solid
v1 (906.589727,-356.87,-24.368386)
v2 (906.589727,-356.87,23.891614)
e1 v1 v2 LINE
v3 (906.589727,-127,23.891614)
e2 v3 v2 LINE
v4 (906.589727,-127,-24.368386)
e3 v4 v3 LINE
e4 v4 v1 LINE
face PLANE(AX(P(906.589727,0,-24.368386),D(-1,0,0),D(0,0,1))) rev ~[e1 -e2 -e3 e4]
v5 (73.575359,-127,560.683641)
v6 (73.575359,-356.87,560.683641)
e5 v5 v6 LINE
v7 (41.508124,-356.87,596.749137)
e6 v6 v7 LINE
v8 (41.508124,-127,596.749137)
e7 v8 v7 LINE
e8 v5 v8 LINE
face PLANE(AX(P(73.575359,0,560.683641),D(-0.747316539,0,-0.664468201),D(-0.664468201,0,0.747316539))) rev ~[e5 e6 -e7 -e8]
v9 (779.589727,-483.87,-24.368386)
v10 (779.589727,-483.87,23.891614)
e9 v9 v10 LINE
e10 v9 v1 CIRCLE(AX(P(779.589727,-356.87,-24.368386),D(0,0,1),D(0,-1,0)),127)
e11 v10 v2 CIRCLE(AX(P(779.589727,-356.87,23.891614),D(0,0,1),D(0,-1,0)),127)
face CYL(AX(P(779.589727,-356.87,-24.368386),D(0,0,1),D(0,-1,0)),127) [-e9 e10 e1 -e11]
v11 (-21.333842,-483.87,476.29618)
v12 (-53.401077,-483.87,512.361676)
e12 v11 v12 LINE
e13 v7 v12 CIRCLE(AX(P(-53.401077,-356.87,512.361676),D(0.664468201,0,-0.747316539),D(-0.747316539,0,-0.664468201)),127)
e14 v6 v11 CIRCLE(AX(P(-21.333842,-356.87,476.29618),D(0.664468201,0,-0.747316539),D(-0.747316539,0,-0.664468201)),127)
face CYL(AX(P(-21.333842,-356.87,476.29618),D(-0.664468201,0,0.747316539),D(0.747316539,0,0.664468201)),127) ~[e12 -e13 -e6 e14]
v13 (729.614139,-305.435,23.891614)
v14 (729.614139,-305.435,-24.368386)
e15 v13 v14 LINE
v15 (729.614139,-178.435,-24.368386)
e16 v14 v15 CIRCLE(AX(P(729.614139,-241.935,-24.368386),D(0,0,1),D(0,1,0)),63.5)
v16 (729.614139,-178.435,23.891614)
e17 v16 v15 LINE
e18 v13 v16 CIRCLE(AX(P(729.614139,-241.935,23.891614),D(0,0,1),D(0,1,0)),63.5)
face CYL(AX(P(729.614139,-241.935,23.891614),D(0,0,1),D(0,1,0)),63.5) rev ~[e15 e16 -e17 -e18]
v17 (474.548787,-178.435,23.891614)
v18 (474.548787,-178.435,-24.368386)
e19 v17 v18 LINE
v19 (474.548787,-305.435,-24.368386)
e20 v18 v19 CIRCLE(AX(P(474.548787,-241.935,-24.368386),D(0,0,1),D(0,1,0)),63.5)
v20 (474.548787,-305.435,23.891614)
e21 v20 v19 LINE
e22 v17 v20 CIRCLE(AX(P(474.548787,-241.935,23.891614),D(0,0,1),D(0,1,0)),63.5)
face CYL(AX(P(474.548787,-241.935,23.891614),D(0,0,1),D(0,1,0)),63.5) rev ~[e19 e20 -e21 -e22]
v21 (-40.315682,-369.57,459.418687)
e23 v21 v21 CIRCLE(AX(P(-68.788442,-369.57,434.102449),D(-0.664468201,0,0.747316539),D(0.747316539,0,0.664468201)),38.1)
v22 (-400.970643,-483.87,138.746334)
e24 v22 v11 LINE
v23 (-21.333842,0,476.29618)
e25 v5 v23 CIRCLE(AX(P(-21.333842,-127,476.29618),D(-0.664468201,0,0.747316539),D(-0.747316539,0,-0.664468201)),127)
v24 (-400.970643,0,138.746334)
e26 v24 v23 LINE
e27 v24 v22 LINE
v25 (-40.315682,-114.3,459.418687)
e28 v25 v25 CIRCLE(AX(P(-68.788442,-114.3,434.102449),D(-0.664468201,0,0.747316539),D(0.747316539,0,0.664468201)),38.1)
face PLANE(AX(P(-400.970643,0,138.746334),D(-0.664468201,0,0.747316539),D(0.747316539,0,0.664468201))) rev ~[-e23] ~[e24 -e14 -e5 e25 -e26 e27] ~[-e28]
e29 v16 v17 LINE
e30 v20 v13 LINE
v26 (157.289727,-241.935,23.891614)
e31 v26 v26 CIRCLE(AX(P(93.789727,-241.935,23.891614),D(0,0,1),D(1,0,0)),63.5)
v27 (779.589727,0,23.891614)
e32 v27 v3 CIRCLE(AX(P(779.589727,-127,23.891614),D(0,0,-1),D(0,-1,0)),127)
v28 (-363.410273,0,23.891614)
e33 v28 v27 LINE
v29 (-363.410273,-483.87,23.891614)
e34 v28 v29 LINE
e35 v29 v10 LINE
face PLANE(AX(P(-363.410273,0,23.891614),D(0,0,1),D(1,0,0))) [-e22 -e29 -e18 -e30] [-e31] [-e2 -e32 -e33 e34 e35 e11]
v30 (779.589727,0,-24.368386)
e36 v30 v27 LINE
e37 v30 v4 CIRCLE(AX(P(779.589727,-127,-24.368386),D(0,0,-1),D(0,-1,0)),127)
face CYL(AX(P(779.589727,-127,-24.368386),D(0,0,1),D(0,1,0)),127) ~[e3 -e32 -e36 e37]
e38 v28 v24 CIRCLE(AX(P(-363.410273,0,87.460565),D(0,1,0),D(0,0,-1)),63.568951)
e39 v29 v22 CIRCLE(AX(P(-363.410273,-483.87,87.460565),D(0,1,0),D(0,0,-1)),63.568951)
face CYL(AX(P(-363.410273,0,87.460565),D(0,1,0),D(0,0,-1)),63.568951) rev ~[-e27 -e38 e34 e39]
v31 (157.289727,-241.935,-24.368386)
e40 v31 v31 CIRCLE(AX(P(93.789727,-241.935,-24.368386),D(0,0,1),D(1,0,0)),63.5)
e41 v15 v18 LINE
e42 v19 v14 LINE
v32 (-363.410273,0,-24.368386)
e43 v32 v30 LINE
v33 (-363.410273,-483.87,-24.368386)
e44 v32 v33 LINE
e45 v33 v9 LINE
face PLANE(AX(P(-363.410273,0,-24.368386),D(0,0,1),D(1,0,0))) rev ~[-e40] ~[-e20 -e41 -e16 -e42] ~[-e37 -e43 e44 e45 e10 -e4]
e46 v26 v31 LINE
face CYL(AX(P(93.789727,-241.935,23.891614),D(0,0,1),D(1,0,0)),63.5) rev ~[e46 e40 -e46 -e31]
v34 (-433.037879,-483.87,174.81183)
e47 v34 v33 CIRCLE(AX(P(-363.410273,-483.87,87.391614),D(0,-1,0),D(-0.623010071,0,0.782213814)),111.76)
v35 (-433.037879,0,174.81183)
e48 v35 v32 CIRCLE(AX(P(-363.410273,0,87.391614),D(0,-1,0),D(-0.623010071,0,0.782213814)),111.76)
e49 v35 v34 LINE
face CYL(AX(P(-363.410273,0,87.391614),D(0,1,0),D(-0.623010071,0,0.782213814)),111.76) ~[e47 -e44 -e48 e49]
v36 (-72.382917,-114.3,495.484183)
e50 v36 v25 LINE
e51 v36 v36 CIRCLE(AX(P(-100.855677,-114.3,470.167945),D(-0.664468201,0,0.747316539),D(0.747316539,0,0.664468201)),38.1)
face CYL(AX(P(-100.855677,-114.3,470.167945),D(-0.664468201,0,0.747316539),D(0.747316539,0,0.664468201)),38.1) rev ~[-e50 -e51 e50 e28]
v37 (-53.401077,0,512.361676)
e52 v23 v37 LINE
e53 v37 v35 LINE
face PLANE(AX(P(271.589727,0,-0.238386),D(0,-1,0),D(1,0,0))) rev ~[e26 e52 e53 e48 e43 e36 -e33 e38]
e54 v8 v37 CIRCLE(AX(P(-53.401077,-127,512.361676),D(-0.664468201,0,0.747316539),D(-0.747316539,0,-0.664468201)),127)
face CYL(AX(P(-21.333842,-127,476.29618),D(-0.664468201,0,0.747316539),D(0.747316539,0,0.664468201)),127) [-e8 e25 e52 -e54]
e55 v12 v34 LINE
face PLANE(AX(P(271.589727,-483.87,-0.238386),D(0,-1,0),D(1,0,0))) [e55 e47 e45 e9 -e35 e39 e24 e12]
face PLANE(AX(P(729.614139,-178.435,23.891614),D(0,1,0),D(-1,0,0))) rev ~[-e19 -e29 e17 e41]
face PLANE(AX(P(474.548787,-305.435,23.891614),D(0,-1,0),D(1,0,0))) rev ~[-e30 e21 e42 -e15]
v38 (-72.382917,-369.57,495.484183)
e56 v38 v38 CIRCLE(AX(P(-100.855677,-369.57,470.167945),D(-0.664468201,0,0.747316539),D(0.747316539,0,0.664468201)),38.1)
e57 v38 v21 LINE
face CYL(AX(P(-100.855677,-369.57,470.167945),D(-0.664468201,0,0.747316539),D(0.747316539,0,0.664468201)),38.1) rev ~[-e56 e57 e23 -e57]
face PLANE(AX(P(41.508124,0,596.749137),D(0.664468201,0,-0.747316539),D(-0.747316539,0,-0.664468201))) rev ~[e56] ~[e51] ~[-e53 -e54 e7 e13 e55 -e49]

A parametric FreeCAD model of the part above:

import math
import FreeCAD as App
import Part
import Sketcher
Q = App.Units.Quantity


def edges_at(feature, points):
    """Names of the edges that pass closest to the given points."""
    edges = feature.Shape.Edges
    near = lambda p: min(range(len(edges)), key=lambda i: edges[i].distToShape(Part.Vertex(*p))[0])
    return sorted({f"Edge{near(p) + 1}" for p in points})

doc = App.newDocument("Part")
body = doc.addObject("PartDesign::Body", "Body")

sketch1 = doc.addObject("Sketcher::SketchObject", "Sketch")
body.addObject(sketch1)
sketch1.AttachmentSupport = (doc.XZ_Plane, [""])
sketch1.MapMode = "FlatFace"
sketch1.addGeometry([
    Part.LineSegment(App.Vector(-363, -24, 0), App.Vector(907, -24, 0)),
    Part.LineSegment(App.Vector(907, -24, 0), App.Vector(907, 24, 0)),
    Part.LineSegment(App.Vector(907, 24, 0), App.Vector(-363, 24, 0)),
    Part.ArcOfCircle(Part.Circle(App.Vector(-363, 87, 0), App.Vector(0, 0, 1), 64), math.radians(126), math.radians(270)),
    Part.LineSegment(App.Vector(-401, 139, 0), App.Vector(74, 561, 0)),
    Part.LineSegment(App.Vector(74, 561, 0), App.Vector(42, 597, 0)),
    Part.LineSegment(App.Vector(42, 597, 0), App.Vector(-433, 175, 0)),
    Part.ArcOfCircle(Part.Circle(App.Vector(-363, 87, 0), App.Vector(0, 0, 1), 112), math.radians(129), math.radians(270)),
], False)
sketch1.addConstraint([
    Sketcher.Constraint("Coincident", 0, 2, 1, 1),
    Sketcher.Constraint("Coincident", 1, 2, 2, 1),
    Sketcher.Constraint("Tangent", 2, 2, 3, 2),
    Sketcher.Constraint("Coincident", 3, 1, 4, 1),
    Sketcher.Constraint("Coincident", 4, 2, 5, 1),
    Sketcher.Constraint("Coincident", 5, 2, 6, 1),
    Sketcher.Constraint("Coincident", 6, 2, 7, 1),
    Sketcher.Constraint("Tangent", 7, 2, 0, 1),
    Sketcher.Constraint("Horizontal", 0),
    Sketcher.Constraint("Vertical", 1),
    Sketcher.Constraint("Horizontal", 2),
    Sketcher.Constraint("Perpendicular", 4, 5),
    Sketcher.Constraint("Perpendicular", 5, 6),
    Sketcher.Constraint("Vertical", 3, 3, 7, 3),
    Sketcher.Constraint("Equal", 4, 6),
    Sketcher.Constraint("Radius", 7, Q("4.4 in")),
    Sketcher.Constraint("DistanceX", 0, 1, 0, 2, Q("50 in")),
    Sketcher.Constraint("Distance", 4, Q("25 in")),
    Sketcher.Constraint("DistanceY", 1, 1, 1, 2, Q("1.9 in")),
    Sketcher.Constraint("Distance", 5, Q("1.9 in")),
    Sketcher.Constraint("Radius", 3, Q("63.568951 mm")),
    Sketcher.Constraint("DistanceX", -1, 1, 4, 2, Q("73.575359 mm")),
    Sketcher.Constraint("DistanceY", -1, 1, 4, 2, Q("560.683641 mm")),
    Sketcher.Constraint("DistanceX", 6, 2, -1, 1, Q("433.037879 mm")),
])
pad1 = doc.addObject("PartDesign::Pad", "Pad")
body.addObject(pad1)
pad1.Profile = sketch1
pad1.Length = Q("19.05 in")
doc.recompute()

fillet = doc.addObject("PartDesign::Fillet", "Fillet")
body.addObject(fillet)
fillet.Base = (pad1, edges_at(pad1, [(57.542, 0, 578.716), (57.542, -483.87, 578.716)]))
fillet.Radius = Q("5 in")
doc.recompute()

fillet2 = doc.addObject("PartDesign::Fillet", "Fillet001")
body.addObject(fillet2)
fillet2.Base = (fillet, edges_at(fillet, [(906.59, -483.87, -0.238), (906.59, 0, -0.238)]))
fillet2.Radius = Q("5 in")

sketch2 = doc.addObject("Sketcher::SketchObject", "Sketch001")
body.addObject(sketch2)
sketch2.Placement = App.Placement(App.Vector(-277.999988, 0, 312.662049), App.Rotation(App.Vector(0.747316539, 0, 0.664468201), App.Vector(0, 1, 0), App.Vector(-0.664468201, 0, 0.747316539), "ZXY"))
sketch2.addGeometry([
    Part.Circle(App.Vector(237, -114, 0), App.Vector(0, 0, 1), 38),
    Part.Circle(App.Vector(237, -370, 0), App.Vector(0, 0, 1), 38),
], False)
sketch2.addConstraint([
    Sketcher.Constraint("Equal", 0, 1),
    Sketcher.Constraint("Vertical", 0, 3, 1, 3),
    Sketcher.Constraint("Diameter", 0, Q("3 in")),
    Sketcher.Constraint("DistanceY", 0, 3, -1, 1, Q("4.5 in")),
    Sketcher.Constraint("DistanceY", 1, 3, -1, 1, Q("14.55 in")),
    Sketcher.Constraint("DistanceX", -1, 1, 0, 3, Q("237.040533 mm")),
])
pocket1 = doc.addObject("PartDesign::Pocket", "Pocket")
body.addObject(pocket1)
pocket1.Profile = sketch2
pocket1.Length = Q("4.7 in")

sketch3 = doc.addObject("Sketcher::SketchObject", "Sketch002")
body.addObject(sketch3)
sketch3.AttachmentSupport = (doc.XY_Plane, [""])
sketch3.MapMode = "FlatFace"
sketch3.AttachmentOffset = App.Placement(App.Vector(0, 0, 23.891614), App.Rotation())
sketch3.addGeometry([
    Part.Circle(App.Vector(94, -242, 0), App.Vector(0, 0, 1), 64),
    Part.ArcOfCircle(Part.Circle(App.Vector(475, -242, 0), App.Vector(0, 0, 1), 64), math.radians(90), math.radians(270)),
    Part.LineSegment(App.Vector(475, -305, 0), App.Vector(730, -305, 0)),
    Part.ArcOfCircle(Part.Circle(App.Vector(730, -242, 0), App.Vector(0, 0, 1), 64), math.radians(-90), math.radians(90)),
    Part.LineSegment(App.Vector(730, -178, 0), App.Vector(475, -178, 0)),
], False)
sketch3.addConstraint([
    Sketcher.Constraint("Tangent", 1, 2, 2, 1),
    Sketcher.Constraint("Tangent", 2, 2, 3, 1),
    Sketcher.Constraint("Tangent", 3, 2, 4, 1),
    Sketcher.Constraint("Tangent", 4, 2, 1, 1),
    Sketcher.Constraint("Horizontal", 2),
    Sketcher.Constraint("Horizontal", 4),
    Sketcher.Constraint("Equal", 0, 1),
    Sketcher.Constraint("Horizontal", 0, 3, 1, 3),
    Sketcher.Constraint("Diameter", 0, Q("5 in")),
    Sketcher.Constraint("DistanceY", 0, 3, -1, 1, Q("9.525 in")),
    Sketcher.Constraint("DistanceX", 2, 1, 2, 2, Q("255.065352 mm")),
    Sketcher.Constraint("DistanceX", -1, 1, 3, 3, Q("729.614139 mm")),
    Sketcher.Constraint("DistanceX", 0, 3, 1, 3, Q("380.75906 mm")),
])
pocket2 = doc.addObject("PartDesign::Pocket", "Pocket001")
body.addObject(pocket2)
pocket2.Profile = sketch3
pocket2.Type = "TwoLengths"
pocket2.Length = Q("3 in")
pocket2.Length2 = Q("3 in")

doc.recompute()
